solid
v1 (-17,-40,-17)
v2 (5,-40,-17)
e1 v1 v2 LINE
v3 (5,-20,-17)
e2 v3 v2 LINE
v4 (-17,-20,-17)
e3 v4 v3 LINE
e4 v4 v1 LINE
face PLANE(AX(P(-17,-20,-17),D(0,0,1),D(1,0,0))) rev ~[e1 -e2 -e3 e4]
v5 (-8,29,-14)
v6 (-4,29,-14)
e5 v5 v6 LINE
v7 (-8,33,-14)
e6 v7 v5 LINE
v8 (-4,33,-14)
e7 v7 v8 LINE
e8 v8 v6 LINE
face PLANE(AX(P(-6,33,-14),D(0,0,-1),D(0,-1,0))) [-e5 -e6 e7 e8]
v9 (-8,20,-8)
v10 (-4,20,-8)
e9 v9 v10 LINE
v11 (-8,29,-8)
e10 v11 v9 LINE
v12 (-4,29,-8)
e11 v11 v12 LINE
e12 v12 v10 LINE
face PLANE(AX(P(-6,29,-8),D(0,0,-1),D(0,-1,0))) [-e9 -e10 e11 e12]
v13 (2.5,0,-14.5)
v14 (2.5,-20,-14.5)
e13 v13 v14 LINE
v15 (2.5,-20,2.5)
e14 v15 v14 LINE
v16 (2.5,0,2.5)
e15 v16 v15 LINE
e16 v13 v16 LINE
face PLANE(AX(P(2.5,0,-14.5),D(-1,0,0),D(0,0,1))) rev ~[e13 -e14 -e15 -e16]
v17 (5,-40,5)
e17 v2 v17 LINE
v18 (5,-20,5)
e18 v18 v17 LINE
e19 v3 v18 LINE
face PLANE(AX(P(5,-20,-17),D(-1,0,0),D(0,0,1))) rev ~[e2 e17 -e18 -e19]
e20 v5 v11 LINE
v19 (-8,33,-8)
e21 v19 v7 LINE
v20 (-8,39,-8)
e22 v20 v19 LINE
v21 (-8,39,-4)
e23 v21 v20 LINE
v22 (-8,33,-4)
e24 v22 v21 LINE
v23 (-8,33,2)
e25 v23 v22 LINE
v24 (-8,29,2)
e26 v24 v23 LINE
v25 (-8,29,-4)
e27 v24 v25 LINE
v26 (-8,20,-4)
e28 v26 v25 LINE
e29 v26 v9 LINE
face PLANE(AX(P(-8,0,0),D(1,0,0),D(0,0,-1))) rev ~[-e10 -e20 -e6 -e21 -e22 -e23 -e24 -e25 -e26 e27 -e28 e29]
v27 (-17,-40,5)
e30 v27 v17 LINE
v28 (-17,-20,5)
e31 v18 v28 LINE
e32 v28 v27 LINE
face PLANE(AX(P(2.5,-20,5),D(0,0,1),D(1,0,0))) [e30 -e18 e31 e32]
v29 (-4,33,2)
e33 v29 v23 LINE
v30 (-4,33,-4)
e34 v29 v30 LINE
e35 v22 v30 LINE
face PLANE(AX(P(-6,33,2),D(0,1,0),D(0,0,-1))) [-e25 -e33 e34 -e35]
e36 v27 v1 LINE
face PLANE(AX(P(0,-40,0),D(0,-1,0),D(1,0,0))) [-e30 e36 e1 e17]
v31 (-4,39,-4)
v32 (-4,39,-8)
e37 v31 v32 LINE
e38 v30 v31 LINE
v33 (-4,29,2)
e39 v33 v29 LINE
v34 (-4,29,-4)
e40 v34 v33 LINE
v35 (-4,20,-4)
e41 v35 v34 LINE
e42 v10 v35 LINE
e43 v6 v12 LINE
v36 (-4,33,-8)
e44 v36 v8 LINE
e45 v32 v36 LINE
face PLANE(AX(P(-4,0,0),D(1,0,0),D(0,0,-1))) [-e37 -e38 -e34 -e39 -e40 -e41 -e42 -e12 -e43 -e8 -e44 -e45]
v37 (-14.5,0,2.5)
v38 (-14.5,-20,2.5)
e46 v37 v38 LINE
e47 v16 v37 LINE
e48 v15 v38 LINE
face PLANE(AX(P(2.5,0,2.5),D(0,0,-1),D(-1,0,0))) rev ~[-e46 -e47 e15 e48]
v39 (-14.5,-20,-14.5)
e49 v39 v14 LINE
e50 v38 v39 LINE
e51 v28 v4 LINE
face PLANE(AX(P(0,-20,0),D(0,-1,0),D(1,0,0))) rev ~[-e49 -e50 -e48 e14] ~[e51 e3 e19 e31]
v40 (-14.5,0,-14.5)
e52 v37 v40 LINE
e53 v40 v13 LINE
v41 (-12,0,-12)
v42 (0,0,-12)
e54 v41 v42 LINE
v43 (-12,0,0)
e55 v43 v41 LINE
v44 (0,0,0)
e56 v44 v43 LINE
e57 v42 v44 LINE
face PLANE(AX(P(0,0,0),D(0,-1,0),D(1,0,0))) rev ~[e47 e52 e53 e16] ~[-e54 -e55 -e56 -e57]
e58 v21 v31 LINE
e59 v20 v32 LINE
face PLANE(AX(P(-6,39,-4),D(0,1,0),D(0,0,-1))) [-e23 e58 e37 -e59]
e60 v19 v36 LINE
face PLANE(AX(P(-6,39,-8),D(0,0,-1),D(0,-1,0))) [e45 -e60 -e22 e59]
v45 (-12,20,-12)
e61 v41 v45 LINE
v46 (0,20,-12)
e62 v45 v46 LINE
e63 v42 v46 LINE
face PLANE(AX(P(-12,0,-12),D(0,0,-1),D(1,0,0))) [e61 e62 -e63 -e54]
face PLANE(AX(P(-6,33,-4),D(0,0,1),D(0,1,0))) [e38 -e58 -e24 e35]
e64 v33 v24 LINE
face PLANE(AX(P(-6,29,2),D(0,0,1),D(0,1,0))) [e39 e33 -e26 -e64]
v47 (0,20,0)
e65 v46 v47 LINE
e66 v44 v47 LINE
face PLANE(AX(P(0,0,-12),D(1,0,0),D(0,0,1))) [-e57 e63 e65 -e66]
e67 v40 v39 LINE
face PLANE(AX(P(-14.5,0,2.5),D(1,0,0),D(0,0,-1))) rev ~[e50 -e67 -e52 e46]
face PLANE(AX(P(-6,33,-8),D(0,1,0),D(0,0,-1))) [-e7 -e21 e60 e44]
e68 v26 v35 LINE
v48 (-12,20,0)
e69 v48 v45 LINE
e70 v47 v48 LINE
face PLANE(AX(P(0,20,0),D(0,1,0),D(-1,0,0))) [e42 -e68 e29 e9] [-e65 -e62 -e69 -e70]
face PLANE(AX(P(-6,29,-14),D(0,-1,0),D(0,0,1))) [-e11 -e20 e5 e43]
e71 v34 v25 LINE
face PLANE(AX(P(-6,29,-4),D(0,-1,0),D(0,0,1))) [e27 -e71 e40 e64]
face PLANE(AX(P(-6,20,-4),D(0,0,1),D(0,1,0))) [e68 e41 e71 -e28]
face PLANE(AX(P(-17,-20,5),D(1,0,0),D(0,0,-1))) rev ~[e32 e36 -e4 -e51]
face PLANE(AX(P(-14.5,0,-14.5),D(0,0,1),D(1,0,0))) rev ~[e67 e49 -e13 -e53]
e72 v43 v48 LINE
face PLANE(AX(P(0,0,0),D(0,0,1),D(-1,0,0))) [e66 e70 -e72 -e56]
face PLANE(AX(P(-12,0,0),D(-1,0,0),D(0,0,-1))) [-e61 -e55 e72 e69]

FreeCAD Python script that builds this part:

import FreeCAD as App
import Part
import Sketcher
from FreeCAD import Vector
Q = App.Units.Quantity


def add_polygon(sketch, points):
    """Adds a closed chain of lines whose ends are joined by coincident constraints."""
    first, n = sketch.GeometryCount, len(points)
    for a, b in zip(points, points[1:] + points[:1]):
        sketch.addGeometry(Part.LineSegment(App.Vector(*a, 0), App.Vector(*b, 0)), False)
    for i in range(n):
        sketch.addConstraint(Sketcher.Constraint("Coincident", first + i, 2, first + (i + 1) % n, 1))

doc = App.newDocument("Part")
body = doc.addObject("PartDesign::Body", "Body")

# Sketch on XZ plane
sketch1 = body.newObject("Sketcher::SketchObject", "Sketch")
sketch1.AttachmentSupport = (doc.getObject("XZ_Plane"), [""])
sketch1.MapMode = "FlatFace"
add_polygon(sketch1, [(-12, 0), (0, 0), (0, -12), (-12, -12)])  # lines 0-3
sketch1.addConstraint([
    Sketcher.Constraint("Horizontal", 0),
    Sketcher.Constraint("Vertical", 1),
    Sketcher.Constraint("Horizontal", 2),
    Sketcher.Constraint("Vertical", 3),
    Sketcher.Constraint("Coincident", 0, 2, -1, 1),
    Sketcher.Constraint("Equal", 2, 1),
    Sketcher.Constraint("DistanceX", 0, 1, 0, 2, Q("12 mm")),
])
pad1 = body.newObject("PartDesign::Pad", "Pad")
pad1.Profile = sketch1
pad1.Length = 20
pad1.Reversed = True

# Sketch on YZ plane
sketch2 = body.newObject("Sketcher::SketchObject", "Sketch001")
sketch2.AttachmentSupport = (doc.getObject("YZ_Plane"), [""])
sketch2.MapMode = "FlatFace"
sketch2.AttachmentOffset = App.Placement(Vector(0, 0, -6), App.Rotation())
add_polygon(sketch2, [(29, -4), (20, -4), (20, -8), (29, -8), (29, -14), (33, -14), (33, -8), (39, -8), (39, -4), (33, -4), (33, 2), (29, 2)])  # lines 0-11
sketch2.addConstraint([
    Sketcher.Constraint("Horizontal", 0),
    Sketcher.Constraint("Vertical", 1),
    Sketcher.Constraint("Horizontal", 2),
    Sketcher.Constraint("Vertical", 3),
    Sketcher.Constraint("Horizontal", 4),
    Sketcher.Constraint("Vertical", 5),
    Sketcher.Constraint("Horizontal", 6),
    Sketcher.Constraint("Vertical", 7),
    Sketcher.Constraint("Horizontal", 8),
    Sketcher.Constraint("Vertical", 9),
    Sketcher.Constraint("Horizontal", 10),
    Sketcher.Constraint("Vertical", 11),
    Sketcher.Constraint("Horizontal", 2, 2, 5, 2),
    Sketcher.Constraint("Horizontal", 0, 2, 7, 2),
    Sketcher.Constraint("Vertical", 5, 2, 8, 2),
    Sketcher.Constraint("Vertical", 3, 2, 10, 2),
    Sketcher.Constraint("Equal", 10, 1),
    Sketcher.Constraint("Equal", 8, 3),
    Sketcher.Constraint("Equal", 5, 9),
    Sketcher.Constraint("DistanceX", 0, 2, 0, 1, Q("9 mm")),
    Sketcher.Constraint("DistanceX", 4, 1, 4, 2, Q("4 mm")),
    Sketcher.Constraint("DistanceX", 6, 1, 6, 2, Q("6 mm")),
    Sketcher.Constraint("DistanceY", 0, 2, -1, 1, Q("4 mm")),
    Sketcher.Constraint("DistanceX", -1, 1, 0, 2, Q("20 mm")),
])
pad2 = body.newObject("PartDesign::Pad", "Pad001")
pad2.Profile = sketch2
pad2.Length = 4
pad2.Midplane = True

# Sketch on XZ plane
sketch3 = body.newObject("Sketcher::SketchObject", "Sketch002")
sketch3.AttachmentSupport = (doc.getObject("XZ_Plane"), [""])
sketch3.MapMode = "FlatFace"
add_polygon(sketch3, [(2, -14), (2, 2), (-14, 2), (-14, -14)])  # lines 0-3
sketch3.addConstraint([
    Sketcher.Constraint("Vertical", 0),
    Sketcher.Constraint("Horizontal", 1),
    Sketcher.Constraint("Vertical", 2),
    Sketcher.Constraint("Horizontal", 3),
    Sketcher.Constraint("Equal", 3, 0),
    Sketcher.Constraint("DistanceX", 1, 2, 1, 1, Q("17 mm")),
    Sketcher.Constraint("DistanceX", -1, 1, 0, 2, Q("2.5 mm")),
    Sketcher.Constraint("DistanceY", -1, 1, 0, 2, Q("2.5 mm")),
])
pad3 = body.newObject("PartDesign::Pad", "Pad002")
pad3.Profile = sketch3
pad3.Length = 20

# Sketch on XZ plane
sketch4 = body.newObject("Sketcher::SketchObject", "Sketch003")
sketch4.AttachmentSupport = (doc.getObject("XZ_Plane"), [""])
sketch4.MapMode = "FlatFace"
sketch4.AttachmentOffset = App.Placement(Vector(0, 0, 20), App.Rotation())
add_polygon(sketch4, [(5, 5), (-17, 5), (-17, -17), (5, -17)])  # lines 0-3
sketch4.addConstraint([
    Sketcher.Constraint("Horizontal", 0),
    Sketcher.Constraint("Vertical", 1),
    Sketcher.Constraint("Horizontal", 2),
    Sketcher.Constraint("Vertical", 3),
    Sketcher.Constraint("Equal", 2, 1),
    Sketcher.Constraint("DistanceX", 0, 2, 0, 1, Q("22 mm")),
    Sketcher.Constraint("DistanceX", 0, 2, -1, 1, Q("17 mm")),
    Sketcher.Constraint("DistanceY", -1, 1, 0, 2, Q("5 mm")),
])
pad4 = body.newObject("PartDesign::Pad", "Pad003")
pad4.Profile = sketch4
pad4.Length = 20

doc.recompute()
